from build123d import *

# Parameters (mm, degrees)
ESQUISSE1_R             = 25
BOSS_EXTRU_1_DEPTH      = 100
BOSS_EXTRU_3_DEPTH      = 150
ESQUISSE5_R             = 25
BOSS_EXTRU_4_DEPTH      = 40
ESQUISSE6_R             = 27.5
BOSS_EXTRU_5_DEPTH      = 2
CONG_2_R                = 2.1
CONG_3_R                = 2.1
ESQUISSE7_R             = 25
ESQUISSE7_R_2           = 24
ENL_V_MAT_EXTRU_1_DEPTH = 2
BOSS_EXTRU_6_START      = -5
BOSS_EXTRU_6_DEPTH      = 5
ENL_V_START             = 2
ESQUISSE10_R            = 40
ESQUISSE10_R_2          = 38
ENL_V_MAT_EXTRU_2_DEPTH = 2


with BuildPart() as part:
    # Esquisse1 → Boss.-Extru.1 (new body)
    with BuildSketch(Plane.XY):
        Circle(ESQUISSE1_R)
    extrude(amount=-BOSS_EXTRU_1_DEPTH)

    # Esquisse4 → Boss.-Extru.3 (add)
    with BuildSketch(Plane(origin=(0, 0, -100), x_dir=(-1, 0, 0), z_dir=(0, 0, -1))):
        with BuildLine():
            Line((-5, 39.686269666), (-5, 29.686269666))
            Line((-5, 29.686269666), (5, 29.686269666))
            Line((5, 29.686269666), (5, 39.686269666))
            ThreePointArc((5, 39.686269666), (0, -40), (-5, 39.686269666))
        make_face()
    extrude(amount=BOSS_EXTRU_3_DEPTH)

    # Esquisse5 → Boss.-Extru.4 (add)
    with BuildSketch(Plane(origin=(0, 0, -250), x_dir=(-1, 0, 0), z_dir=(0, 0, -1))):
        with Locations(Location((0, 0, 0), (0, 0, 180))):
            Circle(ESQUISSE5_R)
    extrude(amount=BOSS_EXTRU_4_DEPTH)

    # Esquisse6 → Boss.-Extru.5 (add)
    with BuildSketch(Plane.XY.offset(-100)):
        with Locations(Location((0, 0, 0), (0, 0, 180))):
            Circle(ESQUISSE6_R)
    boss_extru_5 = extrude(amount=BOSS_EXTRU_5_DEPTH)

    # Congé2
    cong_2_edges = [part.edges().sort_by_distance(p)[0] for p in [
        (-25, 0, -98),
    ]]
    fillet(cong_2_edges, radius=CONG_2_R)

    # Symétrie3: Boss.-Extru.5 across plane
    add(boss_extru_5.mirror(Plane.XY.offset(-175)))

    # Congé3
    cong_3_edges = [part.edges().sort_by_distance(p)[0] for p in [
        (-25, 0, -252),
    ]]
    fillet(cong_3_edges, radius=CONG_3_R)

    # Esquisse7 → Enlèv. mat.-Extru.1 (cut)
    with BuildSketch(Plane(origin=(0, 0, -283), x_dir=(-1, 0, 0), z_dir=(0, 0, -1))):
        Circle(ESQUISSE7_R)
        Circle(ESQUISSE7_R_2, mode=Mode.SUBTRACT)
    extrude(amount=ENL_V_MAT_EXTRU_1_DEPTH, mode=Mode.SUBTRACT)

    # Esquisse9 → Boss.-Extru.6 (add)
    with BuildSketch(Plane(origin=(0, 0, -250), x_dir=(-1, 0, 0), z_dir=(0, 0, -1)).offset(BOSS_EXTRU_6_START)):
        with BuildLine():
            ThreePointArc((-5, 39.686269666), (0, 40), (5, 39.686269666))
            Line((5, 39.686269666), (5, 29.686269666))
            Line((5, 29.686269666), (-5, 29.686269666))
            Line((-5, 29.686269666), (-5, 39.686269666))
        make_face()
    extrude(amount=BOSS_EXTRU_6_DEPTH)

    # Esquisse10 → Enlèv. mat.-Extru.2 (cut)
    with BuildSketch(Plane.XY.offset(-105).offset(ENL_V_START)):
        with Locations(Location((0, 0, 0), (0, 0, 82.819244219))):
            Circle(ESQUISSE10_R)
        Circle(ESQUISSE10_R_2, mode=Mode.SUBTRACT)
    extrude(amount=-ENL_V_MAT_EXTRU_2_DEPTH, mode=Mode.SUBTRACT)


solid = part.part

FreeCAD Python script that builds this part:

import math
import FreeCAD as App
import Part
import Sketcher
from FreeCAD import Vector


def edges_at(feature, points):
    """Names of the edges that pass closest to the given points."""
    edges = feature.Shape.Edges
    near = lambda p: min(range(len(edges)), key=lambda i: edges[i].distToShape(Part.Vertex(*p))[0])
    return sorted({f"Edge{near(p) + 1}" for p in points})

doc = App.newDocument("Part")
params = doc.addObject("Spreadsheet::Sheet", "Params")
for row, (alias, value) in enumerate([
    ("sketch1_diameter", "50 mm"),
    ("pad1_length", "100 mm"),
    ("sketch2_radius", "40 mm"),
    ("sketch2_width", "10 mm"),
    ("pad2_length", "150 mm"),
    ("sketch3_diameter", "50 mm"),
    ("pad3_length", "40 mm"),
    ("sketch4_diameter", "55 mm"),
    ("pad4_length", "2 mm"),
    ("fillet_radius", "2.1 mm"),
    ("fillet2_radius", "2.1 mm"),
    ("sketch5_diameter", "50 mm"),
    ("sketch5_diameter2", "48 mm"),
    ("pocket1_length", "2 mm"),
    ("sketch6_radius", "40 mm"),
    ("sketch6_width", "10 mm"),
    ("pad5_length", "5 mm"),
    ("sketch7_diameter", "80 mm"),
    ("sketch7_diameter2", "76 mm"),
    ("pocket2_length", "2 mm"),
], start=1):
    params.set(f"A{row}", alias)
    params.set(f"B{row}", "=" + value)
    params.setAlias(f"B{row}", alias)

body = doc.addObject("PartDesign::Body", "Body")

# Sketch on XY plane
sketch1 = body.newObject("Sketcher::SketchObject", "Sketch")
sketch1.AttachmentSupport = (doc.getObject("XY_Plane"), [""])
sketch1.MapMode = "FlatFace"
sketch1.addGeometry(Part.Circle(Vector(0, 0, 0), Vector(0, 0, 1), 25), False)
sketch1.addConstraint(Sketcher.Constraint("Coincident", 0, 3, -1, 1))
sketch1.addConstraint(Sketcher.Constraint("Diameter", 0, 50.0))
sketch1.setExpression("Constraints[1]", "Params.sketch1_diameter")
pad1 = body.newObject("PartDesign::Pad", "Pad")
pad1.Profile = sketch1
pad1.setExpression("Length", "Params.pad1_length")
pad1.Reversed = True

# Sketch on XY plane
sketch2 = body.newObject("Sketcher::SketchObject", "Sketch001")
sketch2.AttachmentSupport = (doc.getObject("XY_Plane"), [""])
sketch2.MapMode = "FlatFace"
sketch2.AttachmentOffset = App.Placement(Vector(0, 0, -100), App.Rotation())
sketch2.addGeometry(Part.LineSegment(Vector(5, 30, 0), Vector(5, 40, 0)), False)
sketch2.addGeometry(Part.ArcOfCircle(Part.Circle(Vector(0, 0, 0), Vector(0, 0, 1), 40), math.radians(97), math.radians(443)), False)
sketch2.addGeometry(Part.LineSegment(Vector(-5, 40, 0), Vector(-5, 30, 0)), False)
sketch2.addGeometry(Part.LineSegment(Vector(-5, 30, 0), Vector(5, 30, 0)), False)
sketch2.addConstraint(Sketcher.Constraint("Coincident", 0, 2, 1, 2))
sketch2.addConstraint(Sketcher.Constraint("Coincident", 1, 1, 2, 1))
sketch2.addConstraint(Sketcher.Constraint("Coincident", 2, 2, 3, 1))
sketch2.addConstraint(Sketcher.Constraint("Coincident", 3, 2, 0, 1))
sketch2.addConstraint(Sketcher.Constraint("Vertical", 0))
sketch2.addConstraint(Sketcher.Constraint("Vertical", 2))
sketch2.addConstraint(Sketcher.Constraint("Horizontal", 3))
sketch2.addConstraint(Sketcher.Constraint("Coincident", 1, 3, -1, 1))
sketch2.addConstraint(Sketcher.Constraint("Horizontal", 0, 2, 1, 1))
sketch2.addConstraint(Sketcher.Constraint("Equal", 3, 0))
sketch2.addConstraint(Sketcher.Constraint("Radius", 1, 40.0))
sketch2.addConstraint(Sketcher.Constraint("DistanceX", 3, 1, 3, 2, 10.0))
sketch2.setExpression("Constraints[10]", "Params.sketch2_radius")
sketch2.setExpression("Constraints[11]", "Params.sketch2_width")
pad2 = body.newObject("PartDesign::Pad", "Pad001")
pad2.Profile = sketch2
pad2.setExpression("Length", "Params.pad2_length")
pad2.Reversed = True

# Sketch on XY plane
sketch3 = body.newObject("Sketcher::SketchObject", "Sketch002")
sketch3.AttachmentSupport = (doc.getObject("XY_Plane"), [""])
sketch3.MapMode = "FlatFace"
sketch3.AttachmentOffset = App.Placement(Vector(0, 0, -250), App.Rotation())
sketch3.addGeometry(Part.Circle(Vector(0, 0, 0), Vector(0, 0, 1), 25), False)
sketch3.addConstraint(Sketcher.Constraint("Coincident", 0, 3, -1, 1))
sketch3.addConstraint(Sketcher.Constraint("Diameter", 0, 50.0))
sketch3.setExpression("Constraints[1]", "Params.sketch3_diameter")
pad3 = body.newObject("PartDesign::Pad", "Pad002")
pad3.Profile = sketch3
pad3.setExpression("Length", "Params.pad3_length")
pad3.Reversed = True

# Sketch on XY plane
sketch4 = body.newObject("Sketcher::SketchObject", "Sketch003")
sketch4.AttachmentSupport = (doc.getObject("XY_Plane"), [""])
sketch4.MapMode = "FlatFace"
sketch4.AttachmentOffset = App.Placement(Vector(0, 0, -100), App.Rotation())
sketch4.addGeometry(Part.Circle(Vector(0, 0, 0), Vector(0, 0, 1), 28), False)
sketch4.addConstraint(Sketcher.Constraint("Coincident", 0, 3, -1, 1))
sketch4.addConstraint(Sketcher.Constraint("Diameter", 0, 55.0))
sketch4.setExpression("Constraints[1]", "Params.sketch4_diameter")
pad4 = body.newObject("PartDesign::Pad", "Pad003")
pad4.Profile = sketch4
pad4.setExpression("Length", "Params.pad4_length")
doc.recompute()

fillet = body.newObject("PartDesign::Fillet", "Fillet")
fillet.Base = (pad4, edges_at(pad4, [(-25, 0, -98)]))
fillet.setExpression("Radius", "Params.fillet_radius")
doc.recompute()

datumplane = body.newObject("PartDesign::Plane", "DatumPlane")
datumplane.AttachmentSupport = (doc.getObject("XY_Plane"), [""])
datumplane.MapMode = "FlatFace"
datumplane.AttachmentOffset = App.Placement(Vector(0, 0, -175), App.Rotation())
mirrored = body.newObject("PartDesign::Mirrored", "Mirrored")
mirrored.Originals = [pad4]
mirrored.MirrorPlane = (datumplane, [""])
body.Tip = mirrored
doc.recompute()

fillet2 = body.newObject("PartDesign::Fillet", "Fillet001")
fillet2.Base = (mirrored, edges_at(mirrored, [(-25, 0, -252)]))
fillet2.setExpression("Radius", "Params.fillet2_radius")

# Sketch on XY plane
sketch5 = body.newObject("Sketcher::SketchObject", "Sketch004")
sketch5.AttachmentSupport = (doc.getObject("XY_Plane"), [""])
sketch5.MapMode = "FlatFace"
sketch5.AttachmentOffset = App.Placement(Vector(0, 0, -283), App.Rotation())
sketch5.addGeometry(Part.Circle(Vector(0, 0, 0), Vector(0, 0, 1), 25), False)
sketch5.addGeometry(Part.Circle(Vector(0, 0, 0), Vector(0, 0, 1), 24), False)
sketch5.addConstraint(Sketcher.Constraint("Coincident", 0, 3, -1, 1))
sketch5.addConstraint(Sketcher.Constraint("Coincident", 1, 3, -1, 1))
sketch5.addConstraint(Sketcher.Constraint("Diameter", 0, 50.0))
sketch5.addConstraint(Sketcher.Constraint("Diameter", 1, 48.0))
sketch5.setExpression("Constraints[2]", "Params.sketch5_diameter")
sketch5.setExpression("Constraints[3]", "Params.sketch5_diameter2")
pocket1 = body.newObject("PartDesign::Pocket", "Pocket")
pocket1.Profile = sketch5
pocket1.setExpression("Length", "Params.pocket1_length")

# Sketch on XY plane
sketch6 = body.newObject("Sketcher::SketchObject", "Sketch005")
sketch6.AttachmentSupport = (doc.getObject("XY_Plane"), [""])
sketch6.MapMode = "FlatFace"
sketch6.AttachmentOffset = App.Placement(Vector(0, 0, -245), App.Rotation())
sketch6.addGeometry(Part.ArcOfCircle(Part.Circle(Vector(0, 0, 0), Vector(0, 0, 1), 40), math.radians(82.82), math.radians(97.18)), False)
sketch6.addGeometry(Part.LineSegment(Vector(5, 40, 0), Vector(5, 30, 0)), False)
sketch6.addGeometry(Part.LineSegment(Vector(5, 30, 0), Vector(-5, 30, 0)), False)
sketch6.addGeometry(Part.LineSegment(Vector(-5, 30, 0), Vector(-5, 40, 0)), False)
sketch6.addConstraint(Sketcher.Constraint("Coincident", 0, 1, 1, 1))
sketch6.addConstraint(Sketcher.Constraint("Coincident", 1, 2, 2, 1))
sketch6.addConstraint(Sketcher.Constraint("Coincident", 2, 2, 3, 1))
sketch6.addConstraint(Sketcher.Constraint("Coincident", 3, 2, 0, 2))
sketch6.addConstraint(Sketcher.Constraint("Vertical", 1))
sketch6.addConstraint(Sketcher.Constraint("Horizontal", 2))
sketch6.addConstraint(Sketcher.Constraint("Vertical", 3))
sketch6.addConstraint(Sketcher.Constraint("Coincident", 0, 3, -1, 1))
sketch6.addConstraint(Sketcher.Constraint("Horizontal", 0, 1, 3, 2))
sketch6.addConstraint(Sketcher.Constraint("Equal", 2, 1))
sketch6.addConstraint(Sketcher.Constraint("Radius", 0, 40.0))
sketch6.addConstraint(Sketcher.Constraint("DistanceX", 2, 2, 2, 1, 10.0))
sketch6.setExpression("Constraints[10]", "Params.sketch6_radius")
sketch6.setExpression("Constraints[11]", "Params.sketch6_width")
pad5 = body.newObject("PartDesign::Pad", "Pad004")
pad5.Profile = sketch6
pad5.setExpression("Length", "Params.pad5_length")
pad5.Reversed = True

# Sketch on XY plane
sketch7 = body.newObject("Sketcher::SketchObject", "Sketch006")
sketch7.AttachmentSupport = (doc.getObject("XY_Plane"), [""])
sketch7.MapMode = "FlatFace"
sketch7.AttachmentOffset = App.Placement(Vector(0, 0, -103), App.Rotation())
sketch7.addGeometry(Part.Circle(Vector(0, 0, 0), Vector(0, 0, 1), 40), False)
sketch7.addGeometry(Part.Circle(Vector(0, 0, 0), Vector(0, 0, 1), 38), False)
sketch7.addConstraint(Sketcher.Constraint("Coincident", 0, 3, -1, 1))
sketch7.addConstraint(Sketcher.Constraint("Coincident", 1, 3, -1, 1))
sketch7.addConstraint(Sketcher.Constraint("Diameter", 0, 80.0))
sketch7.addConstraint(Sketcher.Constraint("Diameter", 1, 76.0))
sketch7.setExpression("Constraints[2]", "Params.sketch7_diameter")
sketch7.setExpression("Constraints[3]", "Params.sketch7_diameter2")
pocket2 = body.newObject("PartDesign::Pocket", "Pocket001")
pocket2.Profile = sketch7
pocket2.setExpression("Length", "Params.pocket2_length")

doc.recompute()
